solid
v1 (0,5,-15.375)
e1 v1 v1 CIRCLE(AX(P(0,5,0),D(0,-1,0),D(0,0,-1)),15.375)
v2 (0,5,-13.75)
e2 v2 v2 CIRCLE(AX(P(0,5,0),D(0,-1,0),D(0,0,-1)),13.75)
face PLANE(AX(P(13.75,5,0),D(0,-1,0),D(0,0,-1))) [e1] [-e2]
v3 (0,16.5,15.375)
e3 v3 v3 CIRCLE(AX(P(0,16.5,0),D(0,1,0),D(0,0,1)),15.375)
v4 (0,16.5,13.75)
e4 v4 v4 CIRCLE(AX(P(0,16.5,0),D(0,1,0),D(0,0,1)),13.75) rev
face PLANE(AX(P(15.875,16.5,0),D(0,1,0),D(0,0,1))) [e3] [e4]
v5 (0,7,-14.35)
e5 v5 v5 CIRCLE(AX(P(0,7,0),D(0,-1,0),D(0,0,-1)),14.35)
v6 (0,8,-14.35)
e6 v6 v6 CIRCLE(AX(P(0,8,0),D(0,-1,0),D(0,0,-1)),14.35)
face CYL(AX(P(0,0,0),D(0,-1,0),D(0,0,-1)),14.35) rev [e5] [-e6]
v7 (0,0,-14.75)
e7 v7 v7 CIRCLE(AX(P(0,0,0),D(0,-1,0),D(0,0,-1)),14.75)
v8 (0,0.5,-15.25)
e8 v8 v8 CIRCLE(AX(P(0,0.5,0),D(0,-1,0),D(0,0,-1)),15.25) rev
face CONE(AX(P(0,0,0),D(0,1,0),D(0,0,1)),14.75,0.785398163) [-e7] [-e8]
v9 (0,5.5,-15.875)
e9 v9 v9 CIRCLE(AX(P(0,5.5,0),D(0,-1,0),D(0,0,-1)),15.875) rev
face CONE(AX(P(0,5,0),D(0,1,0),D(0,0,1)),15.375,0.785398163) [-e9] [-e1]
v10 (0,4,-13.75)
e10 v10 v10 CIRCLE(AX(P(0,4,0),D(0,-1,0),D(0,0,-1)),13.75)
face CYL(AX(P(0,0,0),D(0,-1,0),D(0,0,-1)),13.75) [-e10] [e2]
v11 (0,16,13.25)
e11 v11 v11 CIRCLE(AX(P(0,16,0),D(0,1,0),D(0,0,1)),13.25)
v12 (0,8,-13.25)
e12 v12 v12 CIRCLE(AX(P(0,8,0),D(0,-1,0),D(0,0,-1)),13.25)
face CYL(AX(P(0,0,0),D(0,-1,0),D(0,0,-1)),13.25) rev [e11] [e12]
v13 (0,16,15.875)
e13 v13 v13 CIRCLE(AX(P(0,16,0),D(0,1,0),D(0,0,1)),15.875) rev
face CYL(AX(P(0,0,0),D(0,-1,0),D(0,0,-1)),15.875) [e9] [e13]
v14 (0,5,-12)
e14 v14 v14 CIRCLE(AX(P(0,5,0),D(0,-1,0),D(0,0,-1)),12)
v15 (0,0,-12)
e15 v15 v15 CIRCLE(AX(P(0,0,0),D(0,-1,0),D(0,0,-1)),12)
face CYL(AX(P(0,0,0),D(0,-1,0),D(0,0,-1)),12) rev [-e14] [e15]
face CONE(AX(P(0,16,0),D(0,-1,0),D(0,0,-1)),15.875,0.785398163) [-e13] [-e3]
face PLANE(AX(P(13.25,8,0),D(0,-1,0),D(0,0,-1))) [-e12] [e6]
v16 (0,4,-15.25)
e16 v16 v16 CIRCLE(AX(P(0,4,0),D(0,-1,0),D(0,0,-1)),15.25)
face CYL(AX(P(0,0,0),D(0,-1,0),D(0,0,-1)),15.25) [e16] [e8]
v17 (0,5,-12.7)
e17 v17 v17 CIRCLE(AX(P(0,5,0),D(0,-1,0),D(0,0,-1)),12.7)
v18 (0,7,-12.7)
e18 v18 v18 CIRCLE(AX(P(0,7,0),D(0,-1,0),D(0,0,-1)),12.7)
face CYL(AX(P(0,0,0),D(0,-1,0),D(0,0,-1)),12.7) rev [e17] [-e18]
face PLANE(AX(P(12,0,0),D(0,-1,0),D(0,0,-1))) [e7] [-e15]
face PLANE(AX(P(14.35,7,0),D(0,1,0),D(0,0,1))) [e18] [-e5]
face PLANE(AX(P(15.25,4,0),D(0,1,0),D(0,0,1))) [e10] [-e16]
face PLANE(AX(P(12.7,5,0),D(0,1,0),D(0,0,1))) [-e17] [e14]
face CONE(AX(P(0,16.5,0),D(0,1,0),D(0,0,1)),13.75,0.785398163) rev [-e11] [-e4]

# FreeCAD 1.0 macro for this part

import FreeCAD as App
import Part
import Sketcher

V = App.Vector
Q = App.Units.Quantity


def edges_at(feature, points):
    """Names of the edges that pass closest to the given points."""
    edges = feature.Shape.Edges
    near = lambda p: min(range(len(edges)), key=lambda i: edges[i].distToShape(Part.Vertex(*p))[0])
    return sorted({f"Edge{near(p) + 1}" for p in points})

doc = App.newDocument("Part")
body = doc.addObject("PartDesign::Body", "Body")

sketch1 = body.newObject("Sketcher::SketchObject", "Sketch")
sketch1.AttachmentSupport = (doc.getObject("XY_Plane"), [""])
sketch1.MapMode = "FlatFace"
sketch1.addGeometry([
    Part.LineSegment(V(12, 0, 0), V(15.2, 0, 0)),
    Part.LineSegment(V(15.2, 0, 0), V(15.2, 4, 0)),
    Part.LineSegment(V(15.2, 4, 0), V(13.8, 4, 0)),
    Part.LineSegment(V(13.8, 4, 0), V(13.8, 5, 0)),
    Part.LineSegment(V(13.8, 5, 0), V(15.9, 5, 0)),
    Part.LineSegment(V(15.9, 5, 0), V(15.9, 16.5, 0)),
    Part.LineSegment(V(15.9, 16.5, 0), V(13.2, 16.5, 0)),
    Part.LineSegment(V(13.2, 16.5, 0), V(13.2, 8, 0)),
    Part.LineSegment(V(13.2, 8, 0), V(14.3, 8, 0)),
    Part.LineSegment(V(14.3, 8, 0), V(14.3, 7, 0)),
    Part.LineSegment(V(14.3, 7, 0), V(12.7, 7, 0)),
    Part.LineSegment(V(12.7, 7, 0), V(12.7, 5, 0)),
    Part.LineSegment(V(12.7, 5, 0), V(12, 5, 0)),
    Part.LineSegment(V(12, 5, 0), V(12, 0, 0)),
], False)
sketch1.addConstraint([
    Sketcher.Constraint("Coincident", 0, 2, 1, 1),
    Sketcher.Constraint("Coincident", 1, 2, 2, 1),
    Sketcher.Constraint("Coincident", 2, 2, 3, 1),
    Sketcher.Constraint("Coincident", 3, 2, 4, 1),
    Sketcher.Constraint("Coincident", 4, 2, 5, 1),
    Sketcher.Constraint("Coincident", 5, 2, 6, 1),
    Sketcher.Constraint("Coincident", 6, 2, 7, 1),
    Sketcher.Constraint("Coincident", 7, 2, 8, 1),
    Sketcher.Constraint("Coincident", 8, 2, 9, 1),
    Sketcher.Constraint("Coincident", 9, 2, 10, 1),
    Sketcher.Constraint("Coincident", 10, 2, 11, 1),
    Sketcher.Constraint("Coincident", 11, 2, 12, 1),
    Sketcher.Constraint("Coincident", 12, 2, 13, 1),
    Sketcher.Constraint("Coincident", 13, 2, 0, 1),
    Sketcher.Constraint("Horizontal", 0),
    Sketcher.Constraint("Vertical", 1),
    Sketcher.Constraint("Horizontal", 2),
    Sketcher.Constraint("Vertical", 3),
    Sketcher.Constraint("Horizontal", 4),
    Sketcher.Constraint("Vertical", 5),
    Sketcher.Constraint("Horizontal", 6),
    Sketcher.Constraint("Vertical", 7),
    Sketcher.Constraint("Horizontal", 8),
    Sketcher.Constraint("Vertical", 9),
    Sketcher.Constraint("Horizontal", 10),
    Sketcher.Constraint("Vertical", 11),
    Sketcher.Constraint("Horizontal", 12),
    Sketcher.Constraint("Vertical", 13),
    Sketcher.Constraint("PointOnObject", 0, 2, -1),
    Sketcher.Constraint("Horizontal", 4, 2, 11, 2),
    Sketcher.Constraint("Equal", 3, 9),
    Sketcher.Constraint("DistanceY", 1, 1, 1, 2, Q("4 mm")),
    Sketcher.Constraint("DistanceY", 3, 1, 3, 2, Q("1 mm")),
    Sketcher.Constraint("DistanceY", 11, 2, 11, 1, Q("2 mm")),
    Sketcher.Constraint("DistanceX", 2, 2, 2, 1, Q("1.5 mm")),
    Sketcher.Constraint("DistanceX", 8, 1, 8, 2, Q("1.1 mm")),
    Sketcher.Constraint("DistanceX", 12, 2, 12, 1, Q("0.7 mm")),
    Sketcher.Constraint("DistanceY", 5, 1, 5, 2, Q("11.5 mm")),
    Sketcher.Constraint("DistanceX", -1, 1, 12, 2, Q("12 mm")),
    Sketcher.Constraint("DistanceX", 6, 2, 1, 2, Q("2 mm")),
    Sketcher.Constraint("DistanceX", 0, 1, 0, 2, Q("3.25 mm")),
    Sketcher.Constraint("DistanceX", 4, 1, 4, 2, Q("2.125 mm")),
])
revolution = body.newObject("PartDesign::Revolution", "Revolution")
revolution.Profile = sketch1
revolution.ReferenceAxis = (sketch1, ["V_Axis"])
revolution.Angle = 360
doc.recompute()

chamfer = body.newObject("PartDesign::Chamfer", "Chamfer")
chamfer.Base = (revolution, edges_at(revolution, [
    (0, 16.5, 13.25),
    (0, 16.5, 15.875),
    (0, 5, 15.875),
    (0, 0, 15.25),
]))
chamfer.Size = 0.5

doc.recompute()
